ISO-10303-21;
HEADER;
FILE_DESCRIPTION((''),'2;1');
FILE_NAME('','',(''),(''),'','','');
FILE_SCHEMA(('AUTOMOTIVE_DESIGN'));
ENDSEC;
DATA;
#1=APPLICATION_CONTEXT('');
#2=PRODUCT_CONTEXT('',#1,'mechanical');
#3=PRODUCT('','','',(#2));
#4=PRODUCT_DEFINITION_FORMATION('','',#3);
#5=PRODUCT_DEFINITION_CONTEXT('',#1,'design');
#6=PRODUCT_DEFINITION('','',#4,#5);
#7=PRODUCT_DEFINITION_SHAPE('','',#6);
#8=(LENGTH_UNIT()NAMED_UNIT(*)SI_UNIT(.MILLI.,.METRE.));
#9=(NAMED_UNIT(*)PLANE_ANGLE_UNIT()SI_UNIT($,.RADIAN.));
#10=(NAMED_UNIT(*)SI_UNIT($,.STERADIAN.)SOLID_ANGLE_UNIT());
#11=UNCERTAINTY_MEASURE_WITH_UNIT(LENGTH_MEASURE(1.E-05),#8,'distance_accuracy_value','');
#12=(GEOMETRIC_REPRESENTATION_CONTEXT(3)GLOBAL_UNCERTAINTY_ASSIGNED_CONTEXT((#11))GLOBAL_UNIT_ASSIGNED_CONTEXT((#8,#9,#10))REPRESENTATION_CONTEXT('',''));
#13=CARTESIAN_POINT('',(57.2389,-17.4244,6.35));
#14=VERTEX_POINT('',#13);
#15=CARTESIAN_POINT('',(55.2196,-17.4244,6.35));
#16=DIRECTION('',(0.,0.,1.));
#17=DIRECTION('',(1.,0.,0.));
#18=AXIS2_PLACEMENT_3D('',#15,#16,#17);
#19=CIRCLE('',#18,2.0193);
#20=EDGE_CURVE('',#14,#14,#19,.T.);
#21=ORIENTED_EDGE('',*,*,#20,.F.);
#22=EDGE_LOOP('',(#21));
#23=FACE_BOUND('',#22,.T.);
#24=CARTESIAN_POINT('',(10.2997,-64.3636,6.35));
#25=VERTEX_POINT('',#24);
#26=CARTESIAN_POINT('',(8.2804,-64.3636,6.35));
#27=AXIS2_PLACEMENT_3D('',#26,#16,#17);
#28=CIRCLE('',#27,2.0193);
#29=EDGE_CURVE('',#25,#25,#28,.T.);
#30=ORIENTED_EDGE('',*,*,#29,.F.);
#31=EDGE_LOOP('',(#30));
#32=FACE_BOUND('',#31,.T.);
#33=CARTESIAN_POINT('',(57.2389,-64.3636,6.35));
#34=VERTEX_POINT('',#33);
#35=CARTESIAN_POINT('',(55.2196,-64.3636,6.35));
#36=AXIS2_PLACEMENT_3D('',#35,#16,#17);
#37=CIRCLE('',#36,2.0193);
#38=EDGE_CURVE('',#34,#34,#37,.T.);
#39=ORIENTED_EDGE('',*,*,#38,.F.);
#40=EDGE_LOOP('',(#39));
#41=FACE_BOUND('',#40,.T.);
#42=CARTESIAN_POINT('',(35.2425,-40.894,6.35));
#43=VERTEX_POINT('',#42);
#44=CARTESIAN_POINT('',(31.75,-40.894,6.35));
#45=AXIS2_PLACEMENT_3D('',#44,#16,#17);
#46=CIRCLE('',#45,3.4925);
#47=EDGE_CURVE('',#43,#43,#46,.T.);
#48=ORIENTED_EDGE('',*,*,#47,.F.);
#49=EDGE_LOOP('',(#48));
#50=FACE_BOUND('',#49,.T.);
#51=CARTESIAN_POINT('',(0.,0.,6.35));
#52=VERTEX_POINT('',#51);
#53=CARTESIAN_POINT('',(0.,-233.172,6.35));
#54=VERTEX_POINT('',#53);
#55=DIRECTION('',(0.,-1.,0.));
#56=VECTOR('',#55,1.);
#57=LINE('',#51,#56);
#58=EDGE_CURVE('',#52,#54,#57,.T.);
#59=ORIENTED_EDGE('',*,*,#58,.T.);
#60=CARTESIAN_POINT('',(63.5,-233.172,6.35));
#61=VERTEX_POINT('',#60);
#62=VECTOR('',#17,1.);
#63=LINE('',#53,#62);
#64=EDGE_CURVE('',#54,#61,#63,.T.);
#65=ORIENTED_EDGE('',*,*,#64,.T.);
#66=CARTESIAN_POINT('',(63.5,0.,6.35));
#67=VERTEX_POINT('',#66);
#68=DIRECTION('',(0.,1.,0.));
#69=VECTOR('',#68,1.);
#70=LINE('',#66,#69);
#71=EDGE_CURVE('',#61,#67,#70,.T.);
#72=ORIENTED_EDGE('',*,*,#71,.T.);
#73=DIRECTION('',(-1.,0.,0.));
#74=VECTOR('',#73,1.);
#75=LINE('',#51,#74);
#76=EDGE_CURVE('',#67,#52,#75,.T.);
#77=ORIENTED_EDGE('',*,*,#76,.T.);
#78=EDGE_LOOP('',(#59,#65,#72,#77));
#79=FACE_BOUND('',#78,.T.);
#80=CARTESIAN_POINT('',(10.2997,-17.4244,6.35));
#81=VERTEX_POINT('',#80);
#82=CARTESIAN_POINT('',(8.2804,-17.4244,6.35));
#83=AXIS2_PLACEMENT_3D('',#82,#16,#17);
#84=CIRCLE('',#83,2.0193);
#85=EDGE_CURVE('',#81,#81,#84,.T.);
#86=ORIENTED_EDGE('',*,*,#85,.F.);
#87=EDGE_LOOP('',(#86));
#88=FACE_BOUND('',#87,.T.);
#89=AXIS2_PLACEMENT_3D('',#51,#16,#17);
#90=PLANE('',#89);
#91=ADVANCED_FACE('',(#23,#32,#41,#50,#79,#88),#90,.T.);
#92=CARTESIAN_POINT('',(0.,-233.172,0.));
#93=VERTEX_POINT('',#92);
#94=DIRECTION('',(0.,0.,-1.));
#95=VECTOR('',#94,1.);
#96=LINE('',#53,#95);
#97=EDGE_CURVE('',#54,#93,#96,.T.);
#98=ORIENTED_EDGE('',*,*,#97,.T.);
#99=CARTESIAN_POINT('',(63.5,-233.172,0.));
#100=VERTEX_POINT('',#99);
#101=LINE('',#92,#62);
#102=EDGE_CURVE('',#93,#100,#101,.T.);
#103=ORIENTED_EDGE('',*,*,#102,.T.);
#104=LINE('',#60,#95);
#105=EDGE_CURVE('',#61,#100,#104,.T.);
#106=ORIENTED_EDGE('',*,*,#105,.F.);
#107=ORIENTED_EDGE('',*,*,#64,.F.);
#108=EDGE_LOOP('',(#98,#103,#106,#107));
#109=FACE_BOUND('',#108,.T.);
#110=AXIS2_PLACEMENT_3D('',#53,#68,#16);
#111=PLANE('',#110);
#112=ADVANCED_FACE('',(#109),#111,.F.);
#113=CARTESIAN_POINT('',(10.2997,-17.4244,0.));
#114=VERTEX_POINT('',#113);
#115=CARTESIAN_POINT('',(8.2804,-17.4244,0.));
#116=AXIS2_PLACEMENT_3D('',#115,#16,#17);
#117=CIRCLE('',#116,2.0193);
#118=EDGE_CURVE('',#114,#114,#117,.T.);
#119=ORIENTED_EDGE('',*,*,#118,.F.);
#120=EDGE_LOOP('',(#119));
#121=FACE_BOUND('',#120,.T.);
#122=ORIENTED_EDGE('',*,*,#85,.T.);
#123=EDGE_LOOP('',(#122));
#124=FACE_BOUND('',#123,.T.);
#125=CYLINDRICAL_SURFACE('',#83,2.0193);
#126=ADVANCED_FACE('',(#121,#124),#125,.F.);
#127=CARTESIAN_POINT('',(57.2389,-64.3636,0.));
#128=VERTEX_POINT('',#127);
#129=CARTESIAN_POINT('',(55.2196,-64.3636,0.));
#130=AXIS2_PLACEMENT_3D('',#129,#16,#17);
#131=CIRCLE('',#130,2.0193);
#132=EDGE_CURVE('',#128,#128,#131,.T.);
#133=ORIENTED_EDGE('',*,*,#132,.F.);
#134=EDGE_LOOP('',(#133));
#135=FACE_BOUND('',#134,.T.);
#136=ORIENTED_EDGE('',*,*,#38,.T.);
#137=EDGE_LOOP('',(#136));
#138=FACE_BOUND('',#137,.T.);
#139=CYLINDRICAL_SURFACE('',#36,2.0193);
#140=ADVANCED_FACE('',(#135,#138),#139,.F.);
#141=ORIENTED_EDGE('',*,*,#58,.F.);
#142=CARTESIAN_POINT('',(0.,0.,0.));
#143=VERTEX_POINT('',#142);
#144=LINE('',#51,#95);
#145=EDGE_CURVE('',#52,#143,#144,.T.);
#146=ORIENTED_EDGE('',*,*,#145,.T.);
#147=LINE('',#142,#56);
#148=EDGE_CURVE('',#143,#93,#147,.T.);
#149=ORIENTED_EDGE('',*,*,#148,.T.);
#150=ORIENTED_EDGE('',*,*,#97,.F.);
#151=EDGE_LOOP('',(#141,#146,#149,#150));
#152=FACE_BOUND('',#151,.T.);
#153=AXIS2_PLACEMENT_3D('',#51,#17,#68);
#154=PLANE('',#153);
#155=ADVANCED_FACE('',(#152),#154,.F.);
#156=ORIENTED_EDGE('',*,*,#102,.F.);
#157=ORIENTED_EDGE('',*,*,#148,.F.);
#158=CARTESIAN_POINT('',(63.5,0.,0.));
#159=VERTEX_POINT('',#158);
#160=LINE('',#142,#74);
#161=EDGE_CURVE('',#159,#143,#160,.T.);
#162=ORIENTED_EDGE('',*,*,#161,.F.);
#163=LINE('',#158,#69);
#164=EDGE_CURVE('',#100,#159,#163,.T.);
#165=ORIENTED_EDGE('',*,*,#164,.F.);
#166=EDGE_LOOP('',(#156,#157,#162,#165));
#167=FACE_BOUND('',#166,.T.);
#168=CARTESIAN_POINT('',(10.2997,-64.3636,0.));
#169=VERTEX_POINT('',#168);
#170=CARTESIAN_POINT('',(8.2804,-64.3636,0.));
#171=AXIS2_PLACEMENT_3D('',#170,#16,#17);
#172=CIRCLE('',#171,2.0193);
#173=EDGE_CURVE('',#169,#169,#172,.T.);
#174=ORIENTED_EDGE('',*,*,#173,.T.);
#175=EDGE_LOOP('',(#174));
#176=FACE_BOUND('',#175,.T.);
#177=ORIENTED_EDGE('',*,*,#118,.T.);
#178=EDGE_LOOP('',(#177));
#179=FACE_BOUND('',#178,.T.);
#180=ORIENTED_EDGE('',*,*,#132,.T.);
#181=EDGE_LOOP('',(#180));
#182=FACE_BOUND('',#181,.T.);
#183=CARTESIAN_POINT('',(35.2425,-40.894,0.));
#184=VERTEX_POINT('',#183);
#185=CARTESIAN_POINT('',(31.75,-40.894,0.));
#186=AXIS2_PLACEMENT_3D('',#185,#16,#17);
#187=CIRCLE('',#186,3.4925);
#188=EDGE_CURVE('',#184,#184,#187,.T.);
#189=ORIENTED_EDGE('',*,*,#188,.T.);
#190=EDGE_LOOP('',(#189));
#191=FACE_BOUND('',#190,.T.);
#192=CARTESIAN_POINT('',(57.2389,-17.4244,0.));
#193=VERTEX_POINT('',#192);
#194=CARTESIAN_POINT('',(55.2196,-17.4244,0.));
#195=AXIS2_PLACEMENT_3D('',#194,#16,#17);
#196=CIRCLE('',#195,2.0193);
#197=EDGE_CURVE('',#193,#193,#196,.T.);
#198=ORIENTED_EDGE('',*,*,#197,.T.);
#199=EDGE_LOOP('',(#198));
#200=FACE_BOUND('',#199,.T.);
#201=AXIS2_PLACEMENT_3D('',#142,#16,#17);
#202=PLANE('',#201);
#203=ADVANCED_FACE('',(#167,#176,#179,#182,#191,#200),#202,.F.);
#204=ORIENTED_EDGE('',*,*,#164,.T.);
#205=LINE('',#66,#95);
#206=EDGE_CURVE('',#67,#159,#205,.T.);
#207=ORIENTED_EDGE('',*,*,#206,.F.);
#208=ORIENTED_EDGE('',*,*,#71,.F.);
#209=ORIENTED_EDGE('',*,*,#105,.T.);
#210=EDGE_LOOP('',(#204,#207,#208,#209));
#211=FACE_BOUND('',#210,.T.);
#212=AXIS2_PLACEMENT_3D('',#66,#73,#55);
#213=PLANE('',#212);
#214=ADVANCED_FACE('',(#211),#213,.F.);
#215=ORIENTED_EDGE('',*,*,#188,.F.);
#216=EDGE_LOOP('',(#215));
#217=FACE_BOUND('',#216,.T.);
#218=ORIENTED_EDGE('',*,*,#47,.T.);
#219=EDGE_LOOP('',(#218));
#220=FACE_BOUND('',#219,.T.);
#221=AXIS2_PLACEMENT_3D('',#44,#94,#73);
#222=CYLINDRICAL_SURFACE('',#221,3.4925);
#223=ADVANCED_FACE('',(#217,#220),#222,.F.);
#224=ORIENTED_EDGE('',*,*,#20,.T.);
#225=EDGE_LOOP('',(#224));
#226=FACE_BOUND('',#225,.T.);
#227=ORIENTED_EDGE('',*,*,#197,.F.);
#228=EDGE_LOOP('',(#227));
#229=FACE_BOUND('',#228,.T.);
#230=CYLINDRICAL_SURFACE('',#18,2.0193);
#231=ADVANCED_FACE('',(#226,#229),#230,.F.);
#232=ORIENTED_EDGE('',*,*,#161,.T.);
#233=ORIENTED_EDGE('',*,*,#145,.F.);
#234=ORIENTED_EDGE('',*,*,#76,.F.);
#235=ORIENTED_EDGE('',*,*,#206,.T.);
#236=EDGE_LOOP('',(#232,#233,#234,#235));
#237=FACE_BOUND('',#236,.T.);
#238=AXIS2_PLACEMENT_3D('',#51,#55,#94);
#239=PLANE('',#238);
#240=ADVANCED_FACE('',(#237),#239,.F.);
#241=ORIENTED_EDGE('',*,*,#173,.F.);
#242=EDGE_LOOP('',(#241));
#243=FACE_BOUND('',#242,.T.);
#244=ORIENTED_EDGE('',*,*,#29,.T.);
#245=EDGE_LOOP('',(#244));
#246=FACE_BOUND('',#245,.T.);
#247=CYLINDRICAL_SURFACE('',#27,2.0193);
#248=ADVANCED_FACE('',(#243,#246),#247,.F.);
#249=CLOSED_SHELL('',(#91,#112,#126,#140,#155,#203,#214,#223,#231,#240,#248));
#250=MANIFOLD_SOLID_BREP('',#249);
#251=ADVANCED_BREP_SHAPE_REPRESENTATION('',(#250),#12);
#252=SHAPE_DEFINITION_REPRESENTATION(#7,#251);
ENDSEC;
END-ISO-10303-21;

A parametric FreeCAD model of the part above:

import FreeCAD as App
import Part
import Sketcher
Q = App.Units.Quantity

doc = App.newDocument("Part")
body = doc.addObject("PartDesign::Body", "Body")

# Sketch on XY plane
sketch1 = doc.addObject("Sketcher::SketchObject", "Sketch")
body.addObject(sketch1)
sketch1.AttachmentSupport = (doc.XY_Plane, [""])
sketch1.MapMode = "FlatFace"
sketch1.addGeometry(Part.LineSegment(App.Vector(0, 0, 0), App.Vector(0, -233.172, 0)), False)
sketch1.addGeometry(Part.LineSegment(App.Vector(0, -233.172, 0), App.Vector(63.5, -233.172, 0)), False)
sketch1.addGeometry(Part.LineSegment(App.Vector(63.5, -233.172, 0), App.Vector(63.5, 0, 0)), False)
sketch1.addGeometry(Part.LineSegment(App.Vector(63.5, 0, 0), App.Vector(0, 0, 0)), False)
sketch1.addGeometry(Part.Circle(App.Vector(31.75, -40.894, 0), App.Vector(0, 0, 1), 3.4925), False)
sketch1.addConstraint(Sketcher.Constraint("Coincident", 0, 2, 1, 1))
sketch1.addConstraint(Sketcher.Constraint("Coincident", 1, 2, 2, 1))
sketch1.addConstraint(Sketcher.Constraint("Coincident", 2, 2, 3, 1))
sketch1.addConstraint(Sketcher.Constraint("Coincident", 3, 2, 0, 1))
sketch1.addConstraint(Sketcher.Constraint("Vertical", 0))
sketch1.addConstraint(Sketcher.Constraint("Horizontal", 1))
sketch1.addConstraint(Sketcher.Constraint("Vertical", 2))
sketch1.addConstraint(Sketcher.Constraint("Horizontal", 3))
sketch1.addConstraint(Sketcher.Constraint("Coincident", 3, 2, -1, 1))
sketch1.addConstraint(Sketcher.Constraint("Diameter", 4, Q("0.275 in")))
sketch1.addConstraint(Sketcher.Constraint("DistanceX", 1, 1, 1, 2, Q("2.5 in")))
sketch1.addConstraint(Sketcher.Constraint("DistanceY", 0, 2, 0, 1, Q("9.18 in")))
sketch1.addConstraint(Sketcher.Constraint("DistanceX", -1, 1, 4, 3, Q("1.25 in")))
sketch1.addConstraint(Sketcher.Constraint("DistanceY", 4, 3, -1, 1, Q("1.61 in")))
pad1 = doc.addObject("PartDesign::Pad", "Pad")
body.addObject(pad1)
pad1.Profile = sketch1
pad1.Length = Q("0.25 in")

# Sketch on XY plane
sketch2 = doc.addObject("Sketcher::SketchObject", "Sketch001")
body.addObject(sketch2)
sketch2.AttachmentSupport = (doc.XY_Plane, [""])
sketch2.MapMode = "FlatFace"
sketch2.AttachmentOffset = App.Placement(App.Vector(0, 0, 0.25 * 25.4), App.Rotation())
sketch2.addGeometry(Part.Circle(App.Vector(8.2804, -17.4244, 0), App.Vector(0, 0, 1), 2.0193), False)
sketch2.addGeometry(Part.Circle(App.Vector(55.2196, -17.4244, 0), App.Vector(0, 0, 1), 2.0193), False)
sketch2.addGeometry(Part.Circle(App.Vector(55.2196, -64.3636, 0), App.Vector(0, 0, 1), 2.0193), False)
sketch2.addGeometry(Part.Circle(App.Vector(8.2804, -64.3636, 0), App.Vector(0, 0, 1), 2.0193), False)
sketch2.addConstraint(Sketcher.Constraint("Equal", 0, 1))
sketch2.addConstraint(Sketcher.Constraint("Equal", 1, 2))
sketch2.addConstraint(Sketcher.Constraint("Equal", 2, 3))
sketch2.addConstraint(Sketcher.Constraint("Horizontal", 0, 3, 1, 3))
sketch2.addConstraint(Sketcher.Constraint("Horizontal", 2, 3, 3, 3))
sketch2.addConstraint(Sketcher.Constraint("Vertical", 1, 3, 2, 3))
sketch2.addConstraint(Sketcher.Constraint("Vertical", 0, 3, 3, 3))
sketch2.addConstraint(Sketcher.Constraint("Diameter", 0, Q("0.159 in")))
sketch2.addConstraint(Sketcher.Constraint("DistanceX", -1, 1, 0, 3, Q("0.326 in")))
sketch2.addConstraint(Sketcher.Constraint("DistanceY", 0, 3, -1, 1, Q("0.686 in")))
sketch2.addConstraint(Sketcher.Constraint("DistanceX", -1, 1, 1, 3, Q("2.174 in")))
sketch2.addConstraint(Sketcher.Constraint("DistanceY", 2, 3, -1, 1, Q("2.534 in")))
doc.recompute()
hole = doc.addObject("PartDesign::Hole", "Hole")
body.addObject(hole)
hole.Profile = sketch2
hole.ThreadType = "None"
hole.Diameter = Q("0.159 in")
hole.DepthType = "Dimension"
hole.Depth = Q("0.25 in")
hole.DrillPoint = "Flat"

doc.recompute()
